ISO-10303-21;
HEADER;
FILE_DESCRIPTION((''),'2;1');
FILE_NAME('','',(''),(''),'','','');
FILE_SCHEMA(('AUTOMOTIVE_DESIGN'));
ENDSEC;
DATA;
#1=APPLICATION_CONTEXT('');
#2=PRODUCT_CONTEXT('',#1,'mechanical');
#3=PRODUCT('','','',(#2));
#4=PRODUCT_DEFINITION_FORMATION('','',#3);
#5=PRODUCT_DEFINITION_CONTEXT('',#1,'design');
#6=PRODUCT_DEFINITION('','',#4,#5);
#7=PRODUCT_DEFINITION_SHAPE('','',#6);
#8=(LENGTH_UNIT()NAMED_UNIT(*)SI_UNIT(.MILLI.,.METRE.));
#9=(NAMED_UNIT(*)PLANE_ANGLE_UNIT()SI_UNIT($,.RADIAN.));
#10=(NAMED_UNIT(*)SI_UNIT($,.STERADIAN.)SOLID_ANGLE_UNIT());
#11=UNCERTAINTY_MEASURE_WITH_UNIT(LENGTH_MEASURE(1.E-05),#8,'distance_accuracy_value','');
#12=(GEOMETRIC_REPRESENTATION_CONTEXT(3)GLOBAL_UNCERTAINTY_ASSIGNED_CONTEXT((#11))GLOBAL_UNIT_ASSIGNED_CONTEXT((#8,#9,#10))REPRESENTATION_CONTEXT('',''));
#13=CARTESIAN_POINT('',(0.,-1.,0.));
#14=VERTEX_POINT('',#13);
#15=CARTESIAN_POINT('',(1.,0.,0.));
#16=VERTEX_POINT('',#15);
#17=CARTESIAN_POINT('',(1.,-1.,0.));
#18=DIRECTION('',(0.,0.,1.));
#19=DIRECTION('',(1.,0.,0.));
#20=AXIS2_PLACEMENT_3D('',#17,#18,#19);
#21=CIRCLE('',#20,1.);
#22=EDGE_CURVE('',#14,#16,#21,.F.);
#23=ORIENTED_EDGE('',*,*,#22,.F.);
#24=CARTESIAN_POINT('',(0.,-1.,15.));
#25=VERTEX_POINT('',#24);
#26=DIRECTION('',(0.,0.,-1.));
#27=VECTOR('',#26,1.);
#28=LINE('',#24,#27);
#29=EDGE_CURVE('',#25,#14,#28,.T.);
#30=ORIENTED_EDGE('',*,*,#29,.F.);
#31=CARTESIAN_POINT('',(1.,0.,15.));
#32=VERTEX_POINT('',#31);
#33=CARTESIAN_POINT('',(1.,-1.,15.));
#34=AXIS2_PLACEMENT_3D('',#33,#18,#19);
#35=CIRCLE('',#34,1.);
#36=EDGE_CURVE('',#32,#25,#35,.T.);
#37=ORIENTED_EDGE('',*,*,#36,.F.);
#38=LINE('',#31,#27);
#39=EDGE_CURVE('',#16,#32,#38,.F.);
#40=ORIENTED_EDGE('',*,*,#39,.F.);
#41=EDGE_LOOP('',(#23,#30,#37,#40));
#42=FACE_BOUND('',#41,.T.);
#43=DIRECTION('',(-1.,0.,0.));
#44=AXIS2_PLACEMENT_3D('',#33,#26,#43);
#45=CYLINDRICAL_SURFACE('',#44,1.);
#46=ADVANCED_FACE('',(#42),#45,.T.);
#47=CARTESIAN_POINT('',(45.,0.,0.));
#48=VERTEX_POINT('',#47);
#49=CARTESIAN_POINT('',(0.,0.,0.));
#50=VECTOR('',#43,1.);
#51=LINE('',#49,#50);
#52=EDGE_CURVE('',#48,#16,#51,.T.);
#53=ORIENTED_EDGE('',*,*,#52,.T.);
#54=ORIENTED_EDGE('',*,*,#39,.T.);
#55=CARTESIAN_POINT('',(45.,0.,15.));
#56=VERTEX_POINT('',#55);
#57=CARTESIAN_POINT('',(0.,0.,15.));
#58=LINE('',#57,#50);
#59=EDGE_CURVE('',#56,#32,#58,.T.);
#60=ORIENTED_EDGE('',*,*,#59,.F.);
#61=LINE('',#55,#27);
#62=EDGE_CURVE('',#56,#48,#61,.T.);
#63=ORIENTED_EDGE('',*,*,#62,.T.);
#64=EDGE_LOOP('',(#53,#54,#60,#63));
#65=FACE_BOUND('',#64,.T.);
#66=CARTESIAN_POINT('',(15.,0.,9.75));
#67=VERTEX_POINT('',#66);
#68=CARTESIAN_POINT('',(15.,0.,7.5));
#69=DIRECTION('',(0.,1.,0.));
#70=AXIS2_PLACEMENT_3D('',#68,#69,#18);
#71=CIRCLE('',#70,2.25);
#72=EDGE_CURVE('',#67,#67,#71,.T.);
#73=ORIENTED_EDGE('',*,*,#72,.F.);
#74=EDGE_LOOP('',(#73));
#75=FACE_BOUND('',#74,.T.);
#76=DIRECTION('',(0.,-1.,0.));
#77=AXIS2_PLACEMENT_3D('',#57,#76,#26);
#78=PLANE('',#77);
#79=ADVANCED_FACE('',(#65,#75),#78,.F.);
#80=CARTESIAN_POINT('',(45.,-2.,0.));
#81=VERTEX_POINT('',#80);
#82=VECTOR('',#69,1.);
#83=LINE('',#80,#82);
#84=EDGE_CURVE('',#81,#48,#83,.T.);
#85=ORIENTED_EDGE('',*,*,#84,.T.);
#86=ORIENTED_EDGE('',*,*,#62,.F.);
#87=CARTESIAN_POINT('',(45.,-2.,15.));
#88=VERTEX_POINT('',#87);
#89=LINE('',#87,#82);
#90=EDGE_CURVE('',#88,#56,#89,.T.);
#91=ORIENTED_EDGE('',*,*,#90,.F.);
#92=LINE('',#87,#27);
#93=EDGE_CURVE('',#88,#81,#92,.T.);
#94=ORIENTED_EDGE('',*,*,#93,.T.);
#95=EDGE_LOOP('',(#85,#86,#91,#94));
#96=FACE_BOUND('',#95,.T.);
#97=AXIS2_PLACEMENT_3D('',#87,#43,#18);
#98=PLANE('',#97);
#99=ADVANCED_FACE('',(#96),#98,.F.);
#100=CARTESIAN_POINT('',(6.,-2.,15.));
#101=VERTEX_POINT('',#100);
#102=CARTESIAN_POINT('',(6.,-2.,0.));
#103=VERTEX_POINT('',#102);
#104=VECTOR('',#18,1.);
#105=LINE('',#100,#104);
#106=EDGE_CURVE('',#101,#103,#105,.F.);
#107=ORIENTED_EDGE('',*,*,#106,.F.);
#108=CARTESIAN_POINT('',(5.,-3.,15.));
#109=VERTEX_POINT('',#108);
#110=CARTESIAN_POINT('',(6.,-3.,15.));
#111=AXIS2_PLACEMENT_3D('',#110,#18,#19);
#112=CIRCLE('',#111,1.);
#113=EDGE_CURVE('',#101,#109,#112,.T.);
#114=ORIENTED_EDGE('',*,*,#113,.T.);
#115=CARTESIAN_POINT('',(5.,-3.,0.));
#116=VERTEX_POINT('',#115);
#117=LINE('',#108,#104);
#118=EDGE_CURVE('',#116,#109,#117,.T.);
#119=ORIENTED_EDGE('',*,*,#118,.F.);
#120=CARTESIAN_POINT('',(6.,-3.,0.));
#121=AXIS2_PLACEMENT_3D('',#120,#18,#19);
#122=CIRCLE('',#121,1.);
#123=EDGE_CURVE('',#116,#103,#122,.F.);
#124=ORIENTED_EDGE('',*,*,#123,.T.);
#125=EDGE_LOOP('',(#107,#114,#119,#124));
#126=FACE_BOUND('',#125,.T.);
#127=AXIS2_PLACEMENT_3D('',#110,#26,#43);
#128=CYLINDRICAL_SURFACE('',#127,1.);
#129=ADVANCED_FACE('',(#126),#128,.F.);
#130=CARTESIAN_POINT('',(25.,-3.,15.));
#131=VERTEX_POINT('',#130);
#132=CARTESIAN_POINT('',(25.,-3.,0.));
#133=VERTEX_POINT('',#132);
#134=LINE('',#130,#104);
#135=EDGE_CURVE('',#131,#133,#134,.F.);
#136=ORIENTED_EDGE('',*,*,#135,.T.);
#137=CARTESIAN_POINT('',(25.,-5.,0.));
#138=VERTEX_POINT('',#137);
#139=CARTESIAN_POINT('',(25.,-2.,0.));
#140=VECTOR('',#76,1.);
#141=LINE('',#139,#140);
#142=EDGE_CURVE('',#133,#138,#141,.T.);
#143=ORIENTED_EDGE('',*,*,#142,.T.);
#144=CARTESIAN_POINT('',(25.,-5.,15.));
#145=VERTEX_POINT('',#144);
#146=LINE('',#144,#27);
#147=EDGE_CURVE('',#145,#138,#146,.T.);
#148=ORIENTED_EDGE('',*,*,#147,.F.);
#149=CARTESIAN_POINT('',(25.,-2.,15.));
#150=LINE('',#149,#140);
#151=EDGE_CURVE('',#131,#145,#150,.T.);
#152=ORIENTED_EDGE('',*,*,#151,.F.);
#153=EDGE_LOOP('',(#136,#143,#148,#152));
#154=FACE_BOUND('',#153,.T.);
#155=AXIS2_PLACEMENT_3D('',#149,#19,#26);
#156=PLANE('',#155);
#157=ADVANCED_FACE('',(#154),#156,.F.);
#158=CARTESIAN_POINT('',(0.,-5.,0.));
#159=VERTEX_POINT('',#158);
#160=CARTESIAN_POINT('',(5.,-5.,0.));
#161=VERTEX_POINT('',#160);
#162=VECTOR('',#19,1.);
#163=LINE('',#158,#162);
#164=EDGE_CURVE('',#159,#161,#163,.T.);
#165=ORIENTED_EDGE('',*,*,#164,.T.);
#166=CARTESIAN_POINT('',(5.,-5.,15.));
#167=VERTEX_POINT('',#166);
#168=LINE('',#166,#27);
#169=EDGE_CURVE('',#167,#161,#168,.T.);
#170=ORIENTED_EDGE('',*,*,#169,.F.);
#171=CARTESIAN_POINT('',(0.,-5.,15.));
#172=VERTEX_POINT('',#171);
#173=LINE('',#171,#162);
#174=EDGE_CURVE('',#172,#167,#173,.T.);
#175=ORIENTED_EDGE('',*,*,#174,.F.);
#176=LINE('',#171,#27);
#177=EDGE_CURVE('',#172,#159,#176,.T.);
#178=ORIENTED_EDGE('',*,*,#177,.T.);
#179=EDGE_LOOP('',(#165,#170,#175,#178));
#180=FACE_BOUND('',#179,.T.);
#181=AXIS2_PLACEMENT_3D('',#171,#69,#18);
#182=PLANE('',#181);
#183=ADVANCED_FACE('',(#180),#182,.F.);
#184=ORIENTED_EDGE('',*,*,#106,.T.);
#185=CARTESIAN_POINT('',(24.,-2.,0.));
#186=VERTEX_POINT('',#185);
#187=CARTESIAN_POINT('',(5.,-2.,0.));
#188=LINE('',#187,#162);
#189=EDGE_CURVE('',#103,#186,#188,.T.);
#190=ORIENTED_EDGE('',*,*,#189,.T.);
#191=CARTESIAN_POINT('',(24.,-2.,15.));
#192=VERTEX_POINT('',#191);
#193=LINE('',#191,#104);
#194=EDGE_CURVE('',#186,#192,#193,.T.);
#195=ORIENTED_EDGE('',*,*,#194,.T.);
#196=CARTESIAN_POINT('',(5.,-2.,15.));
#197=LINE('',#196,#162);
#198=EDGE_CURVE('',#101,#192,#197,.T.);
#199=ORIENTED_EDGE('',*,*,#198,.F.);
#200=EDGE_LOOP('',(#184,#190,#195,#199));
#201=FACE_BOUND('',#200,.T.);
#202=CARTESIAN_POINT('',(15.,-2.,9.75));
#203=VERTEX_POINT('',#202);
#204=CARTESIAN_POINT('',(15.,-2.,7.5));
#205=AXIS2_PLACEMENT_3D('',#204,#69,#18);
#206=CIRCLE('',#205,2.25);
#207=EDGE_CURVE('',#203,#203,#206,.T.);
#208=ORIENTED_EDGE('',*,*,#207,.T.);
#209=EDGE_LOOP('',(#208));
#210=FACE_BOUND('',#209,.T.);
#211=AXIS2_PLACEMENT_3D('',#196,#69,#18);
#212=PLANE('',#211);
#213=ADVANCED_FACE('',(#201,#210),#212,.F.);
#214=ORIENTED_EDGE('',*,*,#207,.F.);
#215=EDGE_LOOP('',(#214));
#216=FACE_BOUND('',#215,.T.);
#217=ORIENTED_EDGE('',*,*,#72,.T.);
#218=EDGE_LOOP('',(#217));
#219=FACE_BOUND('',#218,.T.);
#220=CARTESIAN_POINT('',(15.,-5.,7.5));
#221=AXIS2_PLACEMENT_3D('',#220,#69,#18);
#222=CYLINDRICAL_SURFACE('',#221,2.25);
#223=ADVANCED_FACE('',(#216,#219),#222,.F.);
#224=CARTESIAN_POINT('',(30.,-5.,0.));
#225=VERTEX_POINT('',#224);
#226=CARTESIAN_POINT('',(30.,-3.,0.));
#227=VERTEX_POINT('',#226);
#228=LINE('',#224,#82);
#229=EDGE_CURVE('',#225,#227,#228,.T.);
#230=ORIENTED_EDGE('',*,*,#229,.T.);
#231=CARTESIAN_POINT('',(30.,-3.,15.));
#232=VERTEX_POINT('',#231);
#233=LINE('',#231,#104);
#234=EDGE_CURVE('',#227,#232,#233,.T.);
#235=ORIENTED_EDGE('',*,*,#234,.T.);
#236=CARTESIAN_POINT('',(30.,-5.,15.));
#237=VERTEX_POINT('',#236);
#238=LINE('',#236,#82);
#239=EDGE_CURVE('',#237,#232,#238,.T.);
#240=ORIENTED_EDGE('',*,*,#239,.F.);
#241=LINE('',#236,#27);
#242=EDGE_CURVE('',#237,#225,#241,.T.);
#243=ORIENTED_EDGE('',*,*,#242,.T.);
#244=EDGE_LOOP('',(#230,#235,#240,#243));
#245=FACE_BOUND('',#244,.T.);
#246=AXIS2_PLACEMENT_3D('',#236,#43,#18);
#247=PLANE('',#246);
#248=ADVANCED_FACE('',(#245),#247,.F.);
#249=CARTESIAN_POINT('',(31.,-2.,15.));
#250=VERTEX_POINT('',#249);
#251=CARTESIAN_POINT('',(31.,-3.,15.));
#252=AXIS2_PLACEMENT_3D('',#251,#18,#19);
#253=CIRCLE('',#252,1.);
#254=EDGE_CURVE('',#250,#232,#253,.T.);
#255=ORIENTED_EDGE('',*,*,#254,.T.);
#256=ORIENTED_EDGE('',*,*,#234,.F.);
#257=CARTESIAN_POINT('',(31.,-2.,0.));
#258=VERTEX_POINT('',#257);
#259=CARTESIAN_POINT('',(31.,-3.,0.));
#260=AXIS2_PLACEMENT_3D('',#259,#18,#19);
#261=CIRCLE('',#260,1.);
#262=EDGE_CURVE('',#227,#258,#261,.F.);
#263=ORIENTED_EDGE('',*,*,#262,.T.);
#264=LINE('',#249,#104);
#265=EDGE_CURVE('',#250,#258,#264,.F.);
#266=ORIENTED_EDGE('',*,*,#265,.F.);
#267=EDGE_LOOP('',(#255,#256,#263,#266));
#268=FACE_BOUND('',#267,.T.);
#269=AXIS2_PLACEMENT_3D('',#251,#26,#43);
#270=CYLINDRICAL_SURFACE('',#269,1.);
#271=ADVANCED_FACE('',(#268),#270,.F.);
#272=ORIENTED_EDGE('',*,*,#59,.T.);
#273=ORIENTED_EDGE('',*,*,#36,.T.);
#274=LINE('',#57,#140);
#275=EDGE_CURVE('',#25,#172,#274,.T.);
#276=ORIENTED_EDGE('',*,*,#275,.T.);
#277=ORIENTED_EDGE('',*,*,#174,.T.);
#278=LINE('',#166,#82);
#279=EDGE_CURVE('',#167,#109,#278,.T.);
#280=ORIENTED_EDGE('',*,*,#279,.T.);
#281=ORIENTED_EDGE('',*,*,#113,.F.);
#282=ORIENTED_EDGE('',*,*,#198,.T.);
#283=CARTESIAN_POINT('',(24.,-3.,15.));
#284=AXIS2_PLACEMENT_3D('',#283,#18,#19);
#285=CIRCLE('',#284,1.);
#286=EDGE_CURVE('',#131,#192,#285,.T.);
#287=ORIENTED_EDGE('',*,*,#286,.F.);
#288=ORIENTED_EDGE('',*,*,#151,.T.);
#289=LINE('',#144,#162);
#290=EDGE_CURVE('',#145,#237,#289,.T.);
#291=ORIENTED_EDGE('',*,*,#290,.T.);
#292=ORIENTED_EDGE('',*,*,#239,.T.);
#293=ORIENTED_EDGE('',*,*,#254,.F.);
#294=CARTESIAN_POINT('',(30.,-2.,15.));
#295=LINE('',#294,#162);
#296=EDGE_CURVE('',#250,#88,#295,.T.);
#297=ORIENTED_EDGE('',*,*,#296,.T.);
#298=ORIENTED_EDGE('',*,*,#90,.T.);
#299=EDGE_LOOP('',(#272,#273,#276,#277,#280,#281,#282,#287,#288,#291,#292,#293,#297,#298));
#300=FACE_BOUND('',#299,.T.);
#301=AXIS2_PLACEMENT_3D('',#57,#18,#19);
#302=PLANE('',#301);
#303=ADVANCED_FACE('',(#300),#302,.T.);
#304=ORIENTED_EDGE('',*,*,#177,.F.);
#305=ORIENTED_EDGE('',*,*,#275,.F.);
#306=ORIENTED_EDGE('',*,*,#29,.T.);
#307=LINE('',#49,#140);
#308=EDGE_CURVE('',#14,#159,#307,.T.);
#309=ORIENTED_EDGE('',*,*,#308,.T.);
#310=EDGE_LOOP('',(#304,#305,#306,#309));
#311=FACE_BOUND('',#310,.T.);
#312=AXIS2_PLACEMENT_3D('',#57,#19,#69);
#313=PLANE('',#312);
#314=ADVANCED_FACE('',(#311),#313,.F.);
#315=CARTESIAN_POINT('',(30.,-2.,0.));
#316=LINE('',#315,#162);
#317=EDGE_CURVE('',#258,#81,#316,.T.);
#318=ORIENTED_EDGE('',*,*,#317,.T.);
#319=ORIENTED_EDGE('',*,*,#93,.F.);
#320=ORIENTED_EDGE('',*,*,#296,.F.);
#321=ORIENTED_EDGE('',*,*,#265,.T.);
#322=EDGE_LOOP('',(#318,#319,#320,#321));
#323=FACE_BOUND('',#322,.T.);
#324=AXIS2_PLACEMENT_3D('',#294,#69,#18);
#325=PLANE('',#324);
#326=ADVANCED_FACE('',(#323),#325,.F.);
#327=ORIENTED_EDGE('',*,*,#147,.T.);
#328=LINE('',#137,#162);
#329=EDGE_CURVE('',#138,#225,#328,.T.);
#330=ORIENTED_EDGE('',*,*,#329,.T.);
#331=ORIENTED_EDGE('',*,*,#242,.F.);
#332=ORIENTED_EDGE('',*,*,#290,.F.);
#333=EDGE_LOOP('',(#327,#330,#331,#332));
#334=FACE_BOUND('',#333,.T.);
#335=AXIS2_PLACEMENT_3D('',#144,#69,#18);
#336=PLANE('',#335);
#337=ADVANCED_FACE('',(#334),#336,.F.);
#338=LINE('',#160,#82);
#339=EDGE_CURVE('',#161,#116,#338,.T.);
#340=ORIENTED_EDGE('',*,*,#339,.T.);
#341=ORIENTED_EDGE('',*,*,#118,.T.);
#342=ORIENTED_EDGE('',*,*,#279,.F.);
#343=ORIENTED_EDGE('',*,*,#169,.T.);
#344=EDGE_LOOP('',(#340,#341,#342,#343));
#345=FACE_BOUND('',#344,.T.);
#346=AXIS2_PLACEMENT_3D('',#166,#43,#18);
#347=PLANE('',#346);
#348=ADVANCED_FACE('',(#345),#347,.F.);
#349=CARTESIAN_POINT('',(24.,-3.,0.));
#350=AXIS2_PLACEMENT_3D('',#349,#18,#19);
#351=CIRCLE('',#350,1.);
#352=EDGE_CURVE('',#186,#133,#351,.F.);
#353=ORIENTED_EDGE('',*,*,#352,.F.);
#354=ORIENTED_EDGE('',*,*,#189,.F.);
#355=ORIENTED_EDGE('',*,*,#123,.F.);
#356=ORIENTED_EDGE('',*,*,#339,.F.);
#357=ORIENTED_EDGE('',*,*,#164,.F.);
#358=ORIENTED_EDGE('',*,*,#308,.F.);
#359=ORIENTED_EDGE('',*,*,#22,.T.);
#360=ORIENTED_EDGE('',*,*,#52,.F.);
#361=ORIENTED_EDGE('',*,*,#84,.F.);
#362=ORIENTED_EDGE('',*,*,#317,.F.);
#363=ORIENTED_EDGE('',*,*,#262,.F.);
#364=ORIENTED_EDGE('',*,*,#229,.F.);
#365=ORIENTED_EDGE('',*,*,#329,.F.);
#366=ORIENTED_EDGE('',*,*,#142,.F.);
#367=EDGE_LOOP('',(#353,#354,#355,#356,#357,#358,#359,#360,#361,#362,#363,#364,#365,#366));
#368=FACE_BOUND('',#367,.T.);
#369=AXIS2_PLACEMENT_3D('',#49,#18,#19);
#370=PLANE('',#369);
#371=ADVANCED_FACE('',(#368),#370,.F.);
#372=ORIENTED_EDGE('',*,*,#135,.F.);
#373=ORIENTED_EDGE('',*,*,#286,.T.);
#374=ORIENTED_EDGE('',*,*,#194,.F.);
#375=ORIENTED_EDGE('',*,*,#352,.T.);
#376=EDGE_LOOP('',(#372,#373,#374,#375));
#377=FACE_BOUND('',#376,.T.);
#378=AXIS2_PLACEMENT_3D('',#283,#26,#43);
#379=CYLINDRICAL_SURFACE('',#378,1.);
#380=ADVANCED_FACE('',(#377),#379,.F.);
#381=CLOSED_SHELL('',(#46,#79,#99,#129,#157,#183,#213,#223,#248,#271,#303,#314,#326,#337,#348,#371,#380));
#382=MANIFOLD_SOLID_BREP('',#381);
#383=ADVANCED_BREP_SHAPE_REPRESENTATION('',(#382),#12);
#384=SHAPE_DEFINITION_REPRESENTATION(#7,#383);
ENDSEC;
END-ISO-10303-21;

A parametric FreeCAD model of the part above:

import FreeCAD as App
import Part
import Sketcher

V = App.Vector


def edges_at(feature, points):
    """Names of the edges that pass closest to the given points."""
    edges = feature.Shape.Edges
    near = lambda p: min(range(len(edges)), key=lambda i: edges[i].distToShape(Part.Vertex(*p))[0])
    return sorted({f"Edge{near(p) + 1}" for p in points})


def add_polygon(sketch, points):
    """Adds a closed chain of lines whose ends are joined by coincident constraints."""
    first, n = sketch.GeometryCount, len(points)
    for a, b in zip(points, points[1:] + points[:1]):
        sketch.addGeometry(Part.LineSegment(App.Vector(*a, 0), App.Vector(*b, 0)), False)
    for i in range(n):
        sketch.addConstraint(Sketcher.Constraint("Coincident", first + i, 2, first + (i + 1) % n, 1))

doc = App.newDocument("Part")
params = doc.addObject("Spreadsheet::Sheet", "Params")
for row, (alias, value) in enumerate([
    ("sketch1_width", "45 mm"),
    ("sketch1_width2", "5 mm"),
    ("sketch1_width3", "20 mm"),
    ("sketch1_height", "3 mm"),
    ("pad1_length", "15 mm"),
    ("fillet_radius", "1 mm"),
    ("fillet2_radius", "1 mm"),
    ("fillet3_radius", "1 mm"),
    ("fillet4_radius", "1 mm"),
    ("sketch2_diameter", "4.5 mm"),
    ("pocket1_length", "5 mm"),
], start=1):
    params.set(f"A{row}", alias)
    params.set(f"B{row}", "=" + value)
    params.setAlias(f"B{row}", alias)

body = doc.addObject("PartDesign::Body", "Body")

sketch1 = body.newObject("Sketcher::SketchObject", "Sketch")
sketch1.AttachmentSupport = (doc.getObject("XY_Plane"), [""])
sketch1.MapMode = "FlatFace"
add_polygon(sketch1, [(45, 0), (0, 0), (0, -5), (5, -5), (5, -2), (25, -2), (25, -5), (30, -5), (30, -2), (45, -2)])
sketch1.addConstraint(Sketcher.Constraint("Horizontal", 0))
sketch1.addConstraint(Sketcher.Constraint("Vertical", 1))
sketch1.addConstraint(Sketcher.Constraint("Horizontal", 2))
sketch1.addConstraint(Sketcher.Constraint("Vertical", 3))
sketch1.addConstraint(Sketcher.Constraint("Horizontal", 4))
sketch1.addConstraint(Sketcher.Constraint("Vertical", 5))
sketch1.addConstraint(Sketcher.Constraint("Horizontal", 6))
sketch1.addConstraint(Sketcher.Constraint("Vertical", 7))
sketch1.addConstraint(Sketcher.Constraint("Horizontal", 8))
sketch1.addConstraint(Sketcher.Constraint("Vertical", 9))
sketch1.addConstraint(Sketcher.Constraint("Coincident", 0, 2, -1, 1))
sketch1.addConstraint(Sketcher.Constraint("Horizontal", 2, 2, 5, 2))
sketch1.addConstraint(Sketcher.Constraint("Horizontal", 4, 2, 7, 2))
sketch1.addConstraint(Sketcher.Constraint("Equal", 2, 6))
sketch1.addConstraint(Sketcher.Constraint("Equal", 6, 1))
sketch1.addConstraint(Sketcher.Constraint("DistanceX", 0, 2, 0, 1, 45.0))
sketch1.addConstraint(Sketcher.Constraint("DistanceX", 2, 1, 2, 2, 5.0))
sketch1.addConstraint(Sketcher.Constraint("DistanceX", 4, 1, 4, 2, 20.0))
sketch1.addConstraint(Sketcher.Constraint("DistanceY", 3, 1, 3, 2, 3.0))
sketch1.setExpression("Constraints[25]", "Params.sketch1_width")
sketch1.setExpression("Constraints[26]", "Params.sketch1_width2")
sketch1.setExpression("Constraints[27]", "Params.sketch1_width3")
sketch1.setExpression("Constraints[28]", "Params.sketch1_height")
pad1 = body.newObject("PartDesign::Pad", "Pad")
pad1.Profile = sketch1
pad1.setExpression("Length", "Params.pad1_length")
doc.recompute()

fillet = body.newObject("PartDesign::Fillet", "Fillet")
fillet.Base = (pad1, edges_at(pad1, [(0, 0, 7.5)]))
fillet.setExpression("Radius", "Params.fillet_radius")
doc.recompute()

fillet2 = body.newObject("PartDesign::Fillet", "Fillet001")
fillet2.Base = (fillet, edges_at(fillet, [(5, -2, 7.5)]))
fillet2.setExpression("Radius", "Params.fillet2_radius")
doc.recompute()

fillet3 = body.newObject("PartDesign::Fillet", "Fillet002")
fillet3.Base = (fillet2, edges_at(fillet2, [(25, -2, 7.5)]))
fillet3.setExpression("Radius", "Params.fillet3_radius")
doc.recompute()

fillet4 = body.newObject("PartDesign::Fillet", "Fillet003")
fillet4.Base = (fillet3, edges_at(fillet3, [(30, -2, 7.5)]))
fillet4.setExpression("Radius", "Params.fillet4_radius")

sketch2 = body.newObject("Sketcher::SketchObject", "Sketch001")
sketch2.AttachmentSupport = (doc.getObject("XZ_Plane"), [""])
sketch2.MapMode = "FlatFace"
sketch2.addGeometry(Part.Circle(V(15, 7.5, 0), V(0, 0, 1), 2.2), False)
sketch2.addConstraint(Sketcher.Constraint("Diameter", 0, 4.5))
sketch2.addConstraint(Sketcher.Constraint("DistanceX", -1, 1, 0, 3, 15.0))
sketch2.addConstraint(Sketcher.Constraint("DistanceY", -1, 1, 0, 3, 7.5))
sketch2.setExpression("Constraints[0]", "Params.sketch2_diameter")
pocket1 = body.newObject("PartDesign::Pocket", "Pocket")
pocket1.Profile = sketch2
pocket1.setExpression("Length", "Params.pocket1_length")
pocket1.Reversed = True

doc.recompute()
